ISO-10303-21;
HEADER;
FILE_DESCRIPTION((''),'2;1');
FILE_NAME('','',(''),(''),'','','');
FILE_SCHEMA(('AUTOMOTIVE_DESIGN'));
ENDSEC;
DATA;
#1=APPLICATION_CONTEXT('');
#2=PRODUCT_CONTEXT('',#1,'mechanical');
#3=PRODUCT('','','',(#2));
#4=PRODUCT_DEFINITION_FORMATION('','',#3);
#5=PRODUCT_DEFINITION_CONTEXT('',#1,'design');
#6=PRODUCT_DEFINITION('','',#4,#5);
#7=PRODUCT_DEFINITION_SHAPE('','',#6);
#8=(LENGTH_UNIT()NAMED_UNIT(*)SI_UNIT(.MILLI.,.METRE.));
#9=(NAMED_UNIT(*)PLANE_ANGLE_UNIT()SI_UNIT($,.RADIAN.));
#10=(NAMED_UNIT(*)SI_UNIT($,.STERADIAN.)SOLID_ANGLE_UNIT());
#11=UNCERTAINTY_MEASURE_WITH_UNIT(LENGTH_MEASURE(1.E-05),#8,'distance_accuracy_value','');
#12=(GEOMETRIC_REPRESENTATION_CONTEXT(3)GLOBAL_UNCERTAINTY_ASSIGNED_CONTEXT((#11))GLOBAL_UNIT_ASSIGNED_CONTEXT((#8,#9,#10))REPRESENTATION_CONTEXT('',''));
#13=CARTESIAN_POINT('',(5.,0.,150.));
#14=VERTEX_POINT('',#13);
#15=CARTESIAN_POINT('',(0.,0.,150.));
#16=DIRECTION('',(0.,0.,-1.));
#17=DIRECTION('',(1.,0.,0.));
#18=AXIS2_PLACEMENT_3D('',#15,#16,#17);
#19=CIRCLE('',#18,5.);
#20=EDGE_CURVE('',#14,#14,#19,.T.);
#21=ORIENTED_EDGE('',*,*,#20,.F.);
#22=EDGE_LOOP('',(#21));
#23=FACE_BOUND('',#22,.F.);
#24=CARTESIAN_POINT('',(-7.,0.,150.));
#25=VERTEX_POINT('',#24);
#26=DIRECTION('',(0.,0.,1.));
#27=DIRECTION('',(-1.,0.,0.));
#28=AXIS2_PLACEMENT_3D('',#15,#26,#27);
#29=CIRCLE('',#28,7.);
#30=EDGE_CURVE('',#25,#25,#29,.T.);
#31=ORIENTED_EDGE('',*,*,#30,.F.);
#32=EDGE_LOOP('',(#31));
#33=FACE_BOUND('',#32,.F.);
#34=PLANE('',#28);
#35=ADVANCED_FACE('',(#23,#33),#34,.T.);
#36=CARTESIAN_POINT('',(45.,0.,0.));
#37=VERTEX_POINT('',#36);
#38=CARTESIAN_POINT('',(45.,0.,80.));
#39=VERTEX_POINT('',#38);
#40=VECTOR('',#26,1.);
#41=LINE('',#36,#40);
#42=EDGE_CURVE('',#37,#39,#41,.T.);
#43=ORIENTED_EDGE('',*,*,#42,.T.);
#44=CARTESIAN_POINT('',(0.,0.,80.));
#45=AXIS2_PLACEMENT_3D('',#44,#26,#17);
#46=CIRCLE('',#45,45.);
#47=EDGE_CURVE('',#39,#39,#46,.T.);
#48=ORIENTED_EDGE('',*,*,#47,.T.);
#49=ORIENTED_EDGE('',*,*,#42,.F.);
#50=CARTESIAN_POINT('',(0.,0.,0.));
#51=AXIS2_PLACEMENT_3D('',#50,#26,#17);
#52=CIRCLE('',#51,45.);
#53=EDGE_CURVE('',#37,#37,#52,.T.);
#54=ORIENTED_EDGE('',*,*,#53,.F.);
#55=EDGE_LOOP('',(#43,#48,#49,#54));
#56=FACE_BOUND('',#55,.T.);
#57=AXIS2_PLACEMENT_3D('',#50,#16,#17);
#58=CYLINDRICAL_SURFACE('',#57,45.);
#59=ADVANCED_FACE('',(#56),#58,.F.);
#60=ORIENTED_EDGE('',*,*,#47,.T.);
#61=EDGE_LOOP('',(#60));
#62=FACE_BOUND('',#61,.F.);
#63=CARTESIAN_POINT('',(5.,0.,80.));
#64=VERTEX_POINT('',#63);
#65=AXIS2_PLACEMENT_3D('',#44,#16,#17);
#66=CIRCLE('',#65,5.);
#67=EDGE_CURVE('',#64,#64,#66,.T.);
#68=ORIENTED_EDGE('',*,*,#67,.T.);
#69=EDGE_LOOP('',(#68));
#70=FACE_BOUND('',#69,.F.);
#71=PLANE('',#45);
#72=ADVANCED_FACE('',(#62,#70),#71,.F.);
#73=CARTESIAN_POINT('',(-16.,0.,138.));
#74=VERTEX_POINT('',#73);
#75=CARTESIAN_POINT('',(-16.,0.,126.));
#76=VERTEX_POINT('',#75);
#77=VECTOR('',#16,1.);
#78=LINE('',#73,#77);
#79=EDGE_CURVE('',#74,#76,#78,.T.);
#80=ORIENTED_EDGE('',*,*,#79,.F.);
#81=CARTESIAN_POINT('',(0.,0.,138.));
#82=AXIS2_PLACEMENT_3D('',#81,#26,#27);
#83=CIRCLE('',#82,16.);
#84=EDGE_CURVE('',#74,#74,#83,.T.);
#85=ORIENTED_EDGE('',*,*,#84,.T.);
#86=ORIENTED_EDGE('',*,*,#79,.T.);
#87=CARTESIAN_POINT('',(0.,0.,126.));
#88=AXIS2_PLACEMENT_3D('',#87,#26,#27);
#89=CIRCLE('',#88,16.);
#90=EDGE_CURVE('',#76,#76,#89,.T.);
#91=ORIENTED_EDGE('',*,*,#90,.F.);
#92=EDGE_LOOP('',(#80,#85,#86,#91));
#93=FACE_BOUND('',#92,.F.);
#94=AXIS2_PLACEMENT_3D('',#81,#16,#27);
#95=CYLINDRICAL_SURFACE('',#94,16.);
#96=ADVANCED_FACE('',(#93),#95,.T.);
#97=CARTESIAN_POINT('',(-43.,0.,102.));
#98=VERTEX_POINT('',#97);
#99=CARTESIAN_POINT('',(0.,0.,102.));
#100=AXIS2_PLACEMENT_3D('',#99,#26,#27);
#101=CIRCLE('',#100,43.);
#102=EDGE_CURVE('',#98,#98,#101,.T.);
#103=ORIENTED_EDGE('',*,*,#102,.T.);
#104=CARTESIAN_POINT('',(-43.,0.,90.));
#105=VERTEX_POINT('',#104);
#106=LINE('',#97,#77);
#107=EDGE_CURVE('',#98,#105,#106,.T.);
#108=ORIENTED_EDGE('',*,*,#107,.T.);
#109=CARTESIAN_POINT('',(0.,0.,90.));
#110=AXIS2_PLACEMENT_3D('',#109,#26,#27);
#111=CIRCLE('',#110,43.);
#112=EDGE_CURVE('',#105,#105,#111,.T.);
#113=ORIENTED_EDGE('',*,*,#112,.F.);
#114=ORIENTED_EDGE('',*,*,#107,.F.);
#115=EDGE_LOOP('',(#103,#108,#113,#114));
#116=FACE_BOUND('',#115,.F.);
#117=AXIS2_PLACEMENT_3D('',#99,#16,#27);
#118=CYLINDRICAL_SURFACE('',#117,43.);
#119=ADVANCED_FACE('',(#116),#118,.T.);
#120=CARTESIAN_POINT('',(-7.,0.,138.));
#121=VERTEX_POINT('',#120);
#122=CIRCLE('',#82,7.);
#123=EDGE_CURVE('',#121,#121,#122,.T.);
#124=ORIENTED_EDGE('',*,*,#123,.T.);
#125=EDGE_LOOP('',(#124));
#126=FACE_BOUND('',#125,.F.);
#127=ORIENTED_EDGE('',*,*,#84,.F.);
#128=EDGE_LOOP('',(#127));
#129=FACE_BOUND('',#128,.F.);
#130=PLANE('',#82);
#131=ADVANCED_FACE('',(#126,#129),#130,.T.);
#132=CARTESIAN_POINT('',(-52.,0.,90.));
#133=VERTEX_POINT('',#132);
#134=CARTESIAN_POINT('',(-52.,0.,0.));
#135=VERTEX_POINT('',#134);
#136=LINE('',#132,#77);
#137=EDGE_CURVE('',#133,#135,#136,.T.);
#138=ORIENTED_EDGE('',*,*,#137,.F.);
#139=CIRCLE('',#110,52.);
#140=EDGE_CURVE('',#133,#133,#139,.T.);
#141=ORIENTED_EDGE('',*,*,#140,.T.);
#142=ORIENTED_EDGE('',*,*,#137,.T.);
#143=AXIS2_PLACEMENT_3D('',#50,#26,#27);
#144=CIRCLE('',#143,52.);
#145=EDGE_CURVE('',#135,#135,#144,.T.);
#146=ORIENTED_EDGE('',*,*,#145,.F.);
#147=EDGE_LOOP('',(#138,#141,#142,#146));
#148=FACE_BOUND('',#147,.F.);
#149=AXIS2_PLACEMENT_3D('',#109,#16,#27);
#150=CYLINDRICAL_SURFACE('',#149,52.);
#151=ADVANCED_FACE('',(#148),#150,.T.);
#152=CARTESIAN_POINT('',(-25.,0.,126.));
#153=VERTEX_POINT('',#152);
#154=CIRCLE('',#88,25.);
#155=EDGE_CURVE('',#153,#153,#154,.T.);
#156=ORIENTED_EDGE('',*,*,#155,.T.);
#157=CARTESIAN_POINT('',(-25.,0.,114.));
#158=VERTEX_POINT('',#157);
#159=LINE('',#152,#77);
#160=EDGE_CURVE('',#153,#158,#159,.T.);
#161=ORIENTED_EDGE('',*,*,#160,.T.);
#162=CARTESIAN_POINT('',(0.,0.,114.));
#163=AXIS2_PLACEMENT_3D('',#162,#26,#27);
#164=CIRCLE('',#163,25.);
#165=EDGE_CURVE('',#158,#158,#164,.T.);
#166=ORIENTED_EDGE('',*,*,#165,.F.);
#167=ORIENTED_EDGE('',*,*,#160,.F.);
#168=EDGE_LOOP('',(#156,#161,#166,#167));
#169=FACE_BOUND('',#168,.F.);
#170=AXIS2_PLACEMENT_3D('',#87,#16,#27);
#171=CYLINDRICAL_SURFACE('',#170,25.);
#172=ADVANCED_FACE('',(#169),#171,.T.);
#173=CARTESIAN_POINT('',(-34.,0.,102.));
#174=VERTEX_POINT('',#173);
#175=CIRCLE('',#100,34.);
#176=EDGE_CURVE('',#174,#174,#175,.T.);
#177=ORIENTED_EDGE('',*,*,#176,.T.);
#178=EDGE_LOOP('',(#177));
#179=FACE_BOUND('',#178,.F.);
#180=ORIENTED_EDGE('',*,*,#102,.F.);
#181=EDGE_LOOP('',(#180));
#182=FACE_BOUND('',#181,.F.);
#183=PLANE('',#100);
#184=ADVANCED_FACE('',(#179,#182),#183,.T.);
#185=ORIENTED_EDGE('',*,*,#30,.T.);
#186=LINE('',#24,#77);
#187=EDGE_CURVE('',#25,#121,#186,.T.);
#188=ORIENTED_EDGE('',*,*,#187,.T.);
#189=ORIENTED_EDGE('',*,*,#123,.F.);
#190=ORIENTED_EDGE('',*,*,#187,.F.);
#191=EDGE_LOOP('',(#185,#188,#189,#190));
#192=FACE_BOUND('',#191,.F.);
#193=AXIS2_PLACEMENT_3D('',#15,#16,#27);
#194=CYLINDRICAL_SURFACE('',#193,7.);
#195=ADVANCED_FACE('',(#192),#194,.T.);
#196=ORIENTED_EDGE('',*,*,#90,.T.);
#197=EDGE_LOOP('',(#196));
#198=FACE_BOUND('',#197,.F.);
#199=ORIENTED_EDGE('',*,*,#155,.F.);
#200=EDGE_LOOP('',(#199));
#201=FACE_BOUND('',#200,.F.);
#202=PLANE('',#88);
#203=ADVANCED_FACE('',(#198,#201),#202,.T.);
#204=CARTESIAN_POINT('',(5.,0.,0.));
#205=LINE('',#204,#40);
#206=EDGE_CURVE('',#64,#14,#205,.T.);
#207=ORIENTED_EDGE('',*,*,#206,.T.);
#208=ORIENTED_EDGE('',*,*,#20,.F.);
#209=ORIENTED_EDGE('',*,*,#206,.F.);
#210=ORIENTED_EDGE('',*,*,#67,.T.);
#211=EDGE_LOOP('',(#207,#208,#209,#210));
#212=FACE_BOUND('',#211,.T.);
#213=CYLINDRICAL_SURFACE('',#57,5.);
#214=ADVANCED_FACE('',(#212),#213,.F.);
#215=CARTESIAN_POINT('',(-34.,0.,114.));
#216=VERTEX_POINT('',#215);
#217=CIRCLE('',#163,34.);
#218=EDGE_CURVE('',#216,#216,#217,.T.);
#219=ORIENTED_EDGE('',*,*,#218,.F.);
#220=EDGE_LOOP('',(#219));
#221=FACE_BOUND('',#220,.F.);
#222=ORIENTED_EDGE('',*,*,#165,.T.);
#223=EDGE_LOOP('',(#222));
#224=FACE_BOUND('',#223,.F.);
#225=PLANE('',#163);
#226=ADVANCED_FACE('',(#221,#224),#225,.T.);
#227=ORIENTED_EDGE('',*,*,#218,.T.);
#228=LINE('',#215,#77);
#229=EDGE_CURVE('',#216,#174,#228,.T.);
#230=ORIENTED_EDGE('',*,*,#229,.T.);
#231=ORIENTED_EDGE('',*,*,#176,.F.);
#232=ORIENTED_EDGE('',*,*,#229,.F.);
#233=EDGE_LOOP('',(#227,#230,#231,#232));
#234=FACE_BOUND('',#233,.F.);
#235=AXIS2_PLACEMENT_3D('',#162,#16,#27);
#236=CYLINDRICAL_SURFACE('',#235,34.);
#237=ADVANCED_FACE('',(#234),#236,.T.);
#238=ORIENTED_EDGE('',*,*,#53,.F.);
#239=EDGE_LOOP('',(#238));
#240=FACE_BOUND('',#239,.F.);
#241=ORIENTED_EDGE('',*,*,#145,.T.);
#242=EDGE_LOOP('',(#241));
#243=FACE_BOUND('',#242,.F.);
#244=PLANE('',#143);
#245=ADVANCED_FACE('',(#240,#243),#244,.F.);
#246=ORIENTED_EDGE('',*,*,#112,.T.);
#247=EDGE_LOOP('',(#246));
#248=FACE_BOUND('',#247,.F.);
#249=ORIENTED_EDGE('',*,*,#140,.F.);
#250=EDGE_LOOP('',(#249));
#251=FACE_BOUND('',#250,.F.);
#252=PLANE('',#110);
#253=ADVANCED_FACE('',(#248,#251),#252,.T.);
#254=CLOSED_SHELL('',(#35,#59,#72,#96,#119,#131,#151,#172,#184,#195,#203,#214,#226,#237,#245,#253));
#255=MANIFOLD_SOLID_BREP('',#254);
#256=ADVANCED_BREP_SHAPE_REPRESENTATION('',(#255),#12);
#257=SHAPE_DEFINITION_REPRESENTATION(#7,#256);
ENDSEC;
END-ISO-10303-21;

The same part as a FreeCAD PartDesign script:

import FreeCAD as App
import Part
import Sketcher

V = App.Vector
Q = App.Units.Quantity


def add_polygon(sketch, points):
    """Adds a closed chain of lines whose ends are joined by coincident constraints."""
    first, n = sketch.GeometryCount, len(points)
    for a, b in zip(points, points[1:] + points[:1]):
        sketch.addGeometry(Part.LineSegment(App.Vector(*a, 0), App.Vector(*b, 0)), False)
    for i in range(n):
        sketch.addConstraint(Sketcher.Constraint("Coincident", first + i, 2, first + (i + 1) % n, 1))

doc = App.newDocument("Part")
body = doc.addObject("PartDesign::Body", "Body")

# Sketch on XZ plane
sketch1 = doc.addObject("Sketcher::SketchObject", "Sketch")
body.addObject(sketch1)
sketch1.AttachmentSupport = (doc.XZ_Plane, [""])
sketch1.MapMode = "FlatFace"
add_polygon(sketch1, [(-52, 0), (0, 0), (0, 150), (-7, 150), (-7, 138), (-16, 138), (-16, 126), (-25, 126), (-25, 114), (-34, 114), (-34, 102), (-43, 102), (-43, 90), (-52, 90)])  # lines 0-13
sketch1.addConstraint([
    Sketcher.Constraint("Horizontal", 0),
    Sketcher.Constraint("Vertical", 1),
    Sketcher.Constraint("Horizontal", 2),
    Sketcher.Constraint("Vertical", 3),
    Sketcher.Constraint("Horizontal", 4),
    Sketcher.Constraint("Vertical", 5),
    Sketcher.Constraint("Horizontal", 6),
    Sketcher.Constraint("Vertical", 7),
    Sketcher.Constraint("Horizontal", 8),
    Sketcher.Constraint("Vertical", 9),
    Sketcher.Constraint("Horizontal", 10),
    Sketcher.Constraint("Vertical", 11),
    Sketcher.Constraint("Horizontal", 12),
    Sketcher.Constraint("Vertical", 13),
    Sketcher.Constraint("Coincident", 0, 2, -1, 1),
    Sketcher.Constraint("Equal", 4, 6),
    Sketcher.Constraint("Equal", 6, 8),
    Sketcher.Constraint("Equal", 8, 10),
    Sketcher.Constraint("Equal", 10, 12),
    Sketcher.Constraint("Equal", 3, 5),
    Sketcher.Constraint("Equal", 5, 7),
    Sketcher.Constraint("Equal", 7, 9),
    Sketcher.Constraint("Equal", 9, 11),
    Sketcher.Constraint("DistanceX", 0, 1, 0, 2, Q("52 mm")),
    Sketcher.Constraint("DistanceX", 2, 2, 2, 1, Q("7 mm")),
    Sketcher.Constraint("DistanceY", 1, 1, 1, 2, Q("150 mm")),
    Sketcher.Constraint("DistanceY", 3, 2, 3, 1, Q("12 mm")),
])
revolution = doc.addObject("PartDesign::Revolution", "Revolution")
body.addObject(revolution)
revolution.Profile = sketch1
revolution.ReferenceAxis = (sketch1, ["V_Axis"])
revolution.Angle = 360

# Sketch on XY plane
sketch2 = doc.addObject("Sketcher::SketchObject", "Sketch001")
body.addObject(sketch2)
sketch2.AttachmentSupport = (doc.XY_Plane, [""])
sketch2.MapMode = "FlatFace"
sketch2.addGeometry(Part.Circle(V(0, 0, 0), V(0, 0, 1), 45), False)
sketch2.addConstraint([
    Sketcher.Constraint("Coincident", 0, 3, -1, 1),
    Sketcher.Constraint("Diameter", 0, Q("90 mm")),
])
pocket1 = doc.addObject("PartDesign::Pocket", "Pocket")
body.addObject(pocket1)
pocket1.Profile = sketch2
pocket1.Length = 80
pocket1.Reversed = True

# Sketch on XY plane
sketch3 = doc.addObject("Sketcher::SketchObject", "Sketch002")
body.addObject(sketch3)
sketch3.AttachmentSupport = (doc.XY_Plane, [""])
sketch3.MapMode = "FlatFace"
sketch3.addGeometry(Part.Circle(V(0, 0, 0), V(0, 0, 1), 5), False)
sketch3.addConstraint([
    Sketcher.Constraint("Coincident", 0, 3, -1, 1),
    Sketcher.Constraint("Diameter", 0, Q("10 mm")),
])
pocket2 = doc.addObject("PartDesign::Pocket", "Pocket001")
body.addObject(pocket2)
pocket2.Profile = sketch3
pocket2.Type = "ThroughAll"
pocket2.Reversed = True

doc.recompute()
